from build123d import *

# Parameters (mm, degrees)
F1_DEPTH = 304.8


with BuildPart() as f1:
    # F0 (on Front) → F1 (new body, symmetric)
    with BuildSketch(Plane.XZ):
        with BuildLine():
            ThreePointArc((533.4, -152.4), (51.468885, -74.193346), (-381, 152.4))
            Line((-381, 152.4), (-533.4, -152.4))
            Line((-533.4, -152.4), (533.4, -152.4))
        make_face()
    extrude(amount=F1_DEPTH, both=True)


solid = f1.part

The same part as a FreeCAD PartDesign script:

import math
import FreeCAD as App
import Part
import Sketcher
Q = App.Units.Quantity

doc = App.newDocument("Part")
body = doc.addObject("PartDesign::Body", "Body")

sketch1 = body.newObject("Sketcher::SketchObject", "Sketch")
sketch1.AttachmentSupport = (doc.getObject("XZ_Plane"), [""])
sketch1.MapMode = "FlatFace"
sketch1.addGeometry([
    Part.ArcOfCircle(Part.Circle(App.Vector(533, 1372, 0), App.Vector(0, 0, 1), 1524), math.radians(-127), math.radians(-90)),
    Part.LineSegment(App.Vector(-381, 152, 0), App.Vector(-533, -152, 0)),
    Part.LineSegment(App.Vector(-533, -152, 0), App.Vector(533, -152, 0)),
], False)
sketch1.addConstraint([
    Sketcher.Constraint("Coincident", 0, 1, 1, 1),
    Sketcher.Constraint("Coincident", 1, 2, 2, 1),
    Sketcher.Constraint("Coincident", 2, 2, 0, 2),
    Sketcher.Constraint("Horizontal", 2),
    Sketcher.Constraint("DistanceX", 2, 1, 2, 2, Q("42 in")),
    Sketcher.Constraint("DistanceX", -1, 1, 0, 3, Q("21.0000001 in")),
    Sketcher.Constraint("DistanceX", 1, 2, -1, 1, Q("21 in")),
    Sketcher.Constraint("DistanceY", 1, 2, -1, 1, Q("6 in")),
    Sketcher.Constraint("Radius", 0, 1524.000006),
    Sketcher.Constraint("Distance", 1, 340.77676),
])
pad1 = body.newObject("PartDesign::Pad", "Pad")
pad1.Profile = sketch1
pad1.Length = Q("24 in")
pad1.Midplane = True

doc.recompute()
